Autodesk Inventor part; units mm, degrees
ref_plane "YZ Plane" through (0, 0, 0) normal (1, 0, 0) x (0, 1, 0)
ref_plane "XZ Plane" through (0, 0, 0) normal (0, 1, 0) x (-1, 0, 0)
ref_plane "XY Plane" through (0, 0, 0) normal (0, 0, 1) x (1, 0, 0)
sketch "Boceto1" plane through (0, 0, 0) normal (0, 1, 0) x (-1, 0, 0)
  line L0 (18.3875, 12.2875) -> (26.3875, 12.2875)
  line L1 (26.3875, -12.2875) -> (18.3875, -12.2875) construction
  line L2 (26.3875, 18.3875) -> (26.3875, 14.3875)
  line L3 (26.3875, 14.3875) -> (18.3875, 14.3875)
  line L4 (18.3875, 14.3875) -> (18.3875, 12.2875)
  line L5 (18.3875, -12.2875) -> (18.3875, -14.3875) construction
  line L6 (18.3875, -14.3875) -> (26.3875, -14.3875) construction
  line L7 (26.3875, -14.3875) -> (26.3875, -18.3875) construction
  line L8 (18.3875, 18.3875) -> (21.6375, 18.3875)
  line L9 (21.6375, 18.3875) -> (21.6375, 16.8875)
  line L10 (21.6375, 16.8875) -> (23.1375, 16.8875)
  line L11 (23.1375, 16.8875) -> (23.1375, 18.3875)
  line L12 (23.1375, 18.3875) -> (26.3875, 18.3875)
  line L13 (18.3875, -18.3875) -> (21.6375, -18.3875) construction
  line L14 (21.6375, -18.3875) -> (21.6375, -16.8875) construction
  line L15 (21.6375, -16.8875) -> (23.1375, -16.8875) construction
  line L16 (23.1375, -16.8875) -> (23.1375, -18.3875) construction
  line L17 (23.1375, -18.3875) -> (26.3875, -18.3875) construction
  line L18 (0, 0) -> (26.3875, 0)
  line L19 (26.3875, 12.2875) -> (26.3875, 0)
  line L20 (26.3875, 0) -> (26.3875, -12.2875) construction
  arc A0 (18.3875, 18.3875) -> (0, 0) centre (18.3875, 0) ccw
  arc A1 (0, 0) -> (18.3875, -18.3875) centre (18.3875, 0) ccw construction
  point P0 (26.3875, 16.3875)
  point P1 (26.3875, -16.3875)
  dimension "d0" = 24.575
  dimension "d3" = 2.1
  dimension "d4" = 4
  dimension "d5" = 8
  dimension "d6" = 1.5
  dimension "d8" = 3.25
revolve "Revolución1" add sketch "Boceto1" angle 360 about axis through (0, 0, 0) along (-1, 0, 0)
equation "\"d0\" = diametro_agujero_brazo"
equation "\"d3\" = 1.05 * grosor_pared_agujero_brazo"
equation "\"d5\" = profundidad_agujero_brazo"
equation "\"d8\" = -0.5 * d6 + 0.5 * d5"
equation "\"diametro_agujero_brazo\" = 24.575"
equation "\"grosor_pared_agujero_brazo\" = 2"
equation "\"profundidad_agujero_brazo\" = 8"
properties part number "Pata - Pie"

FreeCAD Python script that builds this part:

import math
import FreeCAD as App
import Part
import Sketcher
from FreeCAD import Vector
Q = App.Units.Quantity

doc = App.newDocument("Part")
body = doc.addObject("PartDesign::Body", "Body")

sketch1 = doc.addObject("Sketcher::SketchObject", "Sketch")
body.addObject(sketch1)
sketch1.AttachmentSupport = (doc.XZ_Plane, [""])
sketch1.MapMode = "FlatFace"
sketch1.addGeometry([
    Part.LineSegment(Vector(-26.3875, 12.2875, 0), Vector(-18.3875, 12.2875, 0)),
    Part.LineSegment(Vector(-18.3875, 12.2875, 0), Vector(-18.3875, 14.3875, 0)),
    Part.LineSegment(Vector(-18.3875, 14.3875, 0), Vector(-26.3875, 14.3875, 0)),
    Part.LineSegment(Vector(-26.3875, 14.3875, 0), Vector(-26.3875, 18.3875, 0)),
    Part.LineSegment(Vector(-26.3875, 18.3875, 0), Vector(-23.1375, 18.3875, 0)),
    Part.LineSegment(Vector(-23.1375, 18.3875, 0), Vector(-23.1375, 16.8875, 0)),
    Part.LineSegment(Vector(-23.1375, 16.8875, 0), Vector(-21.6375, 16.8875, 0)),
    Part.LineSegment(Vector(-21.6375, 16.8875, 0), Vector(-21.6375, 18.3875, 0)),
    Part.LineSegment(Vector(-21.6375, 18.3875, 0), Vector(-18.3875, 18.3875, 0)),
    Part.ArcOfCircle(Part.Circle(Vector(-18.3875, 0, 0), Vector(0, 0, 1), 18.3875), math.radians(0), math.radians(90)),
    Part.LineSegment(Vector(0, 0, 0), Vector(-26.3875, 0, 0)),
    Part.LineSegment(Vector(-26.3875, 0, 0), Vector(-26.3875, 12.2875, 0)),
], False)
sketch1.addConstraint([
    Sketcher.Constraint("Coincident", 0, 2, 1, 1),
    Sketcher.Constraint("Coincident", 1, 2, 2, 1),
    Sketcher.Constraint("Coincident", 2, 2, 3, 1),
    Sketcher.Constraint("Coincident", 3, 2, 4, 1),
    Sketcher.Constraint("Coincident", 4, 2, 5, 1),
    Sketcher.Constraint("Coincident", 5, 2, 6, 1),
    Sketcher.Constraint("Coincident", 6, 2, 7, 1),
    Sketcher.Constraint("Coincident", 7, 2, 8, 1),
    Sketcher.Constraint("Tangent", 8, 2, 9, 2),
    Sketcher.Constraint("Coincident", 9, 1, 10, 1),
    Sketcher.Constraint("Coincident", 10, 2, 11, 1),
    Sketcher.Constraint("Coincident", 11, 2, 0, 1),
    Sketcher.Constraint("Horizontal", 0),
    Sketcher.Constraint("Vertical", 1),
    Sketcher.Constraint("Horizontal", 2),
    Sketcher.Constraint("Vertical", 3),
    Sketcher.Constraint("Horizontal", 4),
    Sketcher.Constraint("Vertical", 5),
    Sketcher.Constraint("Horizontal", 6),
    Sketcher.Constraint("Vertical", 7),
    Sketcher.Constraint("Horizontal", 8),
    Sketcher.Constraint("Horizontal", 10),
    Sketcher.Constraint("Vertical", 11),
    Sketcher.Constraint("Coincident", 9, 1, -1, 1),
    Sketcher.Constraint("PointOnObject", 9, 3, -1),
    Sketcher.Constraint("Horizontal", 4, 2, 7, 2),
    Sketcher.Constraint("Vertical", 9, 3, 0, 2),
    Sketcher.Constraint("Vertical", 3, 2, 10, 2),
    Sketcher.Constraint("Equal", 4, 8),
    Sketcher.Constraint("Equal", 6, 5),
    Sketcher.Constraint("DistanceX", 0, 1, 0, 2, Q("8 mm")),
    Sketcher.Constraint("DistanceY", 3, 1, 3, 2, Q("4 mm")),
    Sketcher.Constraint("DistanceX", 6, 1, 6, 2, Q("1.5 mm")),
    Sketcher.Constraint("DistanceY", 1, 1, 1, 2, Q("2.1 mm")),
    Sketcher.Constraint("Radius", 9, Q("18.3875 mm")),
])
revolution = doc.addObject("PartDesign::Revolution", "Revolution")
body.addObject(revolution)
revolution.Profile = sketch1
revolution.ReferenceAxis = (sketch1, ["H_Axis"])
revolution.Angle = 360

doc.recompute()
